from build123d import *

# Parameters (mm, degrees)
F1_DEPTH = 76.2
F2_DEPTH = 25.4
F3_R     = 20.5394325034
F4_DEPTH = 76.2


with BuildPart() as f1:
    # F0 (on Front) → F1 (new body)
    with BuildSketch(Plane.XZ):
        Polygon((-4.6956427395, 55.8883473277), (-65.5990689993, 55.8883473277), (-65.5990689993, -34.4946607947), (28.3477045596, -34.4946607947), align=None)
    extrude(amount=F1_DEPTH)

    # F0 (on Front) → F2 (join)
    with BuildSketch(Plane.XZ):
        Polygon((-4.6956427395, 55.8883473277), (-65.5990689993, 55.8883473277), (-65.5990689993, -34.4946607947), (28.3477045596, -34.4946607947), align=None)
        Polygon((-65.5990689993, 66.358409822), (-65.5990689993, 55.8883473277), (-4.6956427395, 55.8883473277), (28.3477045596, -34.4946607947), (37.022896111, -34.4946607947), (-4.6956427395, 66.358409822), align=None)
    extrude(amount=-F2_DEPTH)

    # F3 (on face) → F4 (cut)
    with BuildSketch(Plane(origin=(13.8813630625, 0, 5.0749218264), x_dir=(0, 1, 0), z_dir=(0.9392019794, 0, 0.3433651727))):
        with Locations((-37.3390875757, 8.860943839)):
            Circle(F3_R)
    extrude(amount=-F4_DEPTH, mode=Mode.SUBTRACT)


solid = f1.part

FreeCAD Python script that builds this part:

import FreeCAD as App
import Part
import Sketcher

V = App.Vector
Q = App.Units.Quantity

doc = App.newDocument("Part")
body = doc.addObject("PartDesign::Body", "Body")

# Sketch on XZ plane
sketch1 = doc.addObject("Sketcher::SketchObject", "Sketch")
body.addObject(sketch1)
sketch1.AttachmentSupport = (doc.XZ_Plane, [""])
sketch1.MapMode = "FlatFace"
sketch1.addGeometry([
    Part.LineSegment(V(-4.695643, 55.888347, 0), V(-65.599069, 55.888347, 0)),
    Part.LineSegment(V(-65.599069, 55.888347, 0), V(-65.599069, -34.494661, 0)),
    Part.LineSegment(V(-65.599069, -34.494661, 0), V(28.347705, -34.494661, 0)),
    Part.LineSegment(V(28.347705, -34.494661, 0), V(-4.695643, 55.888347, 0)),
], False)
sketch1.addConstraint([
    Sketcher.Constraint("Coincident", 0, 2, 1, 1),
    Sketcher.Constraint("Coincident", 1, 2, 2, 1),
    Sketcher.Constraint("Coincident", 2, 2, 3, 1),
    Sketcher.Constraint("Coincident", 3, 2, 0, 1),
    Sketcher.Constraint("Horizontal", 0),
    Sketcher.Constraint("Vertical", 1),
    Sketcher.Constraint("Horizontal", 2),
    Sketcher.Constraint("DistanceY", 1, 2, 1, 1, Q("90.383008 mm")),
    Sketcher.Constraint("DistanceX", 0, 2, 0, 1, Q("60.903426 mm")),
    Sketcher.Constraint("DistanceX", 2, 1, 2, 2, Q("93.946774 mm")),
    Sketcher.Constraint("DistanceX", 0, 2, -1, 1, Q("65.599069 mm")),
    Sketcher.Constraint("DistanceY", 1, 2, -1, 1, Q("34.494661 mm")),
])
pad1 = doc.addObject("PartDesign::Pad", "Pad")
body.addObject(pad1)
pad1.Profile = sketch1
pad1.Length = Q("3 in")

# Sketch on XZ plane
sketch2 = doc.addObject("Sketcher::SketchObject", "Sketch001")
body.addObject(sketch2)
sketch2.AttachmentSupport = (doc.XZ_Plane, [""])
sketch2.MapMode = "FlatFace"
sketch2.addGeometry([
    Part.LineSegment(V(-65.599069, -34.494661, 0), V(37.022896, -34.494661, 0)),
    Part.LineSegment(V(37.022896, -34.494661, 0), V(-4.695643, 66.35841, 0)),
    Part.LineSegment(V(-4.695643, 66.35841, 0), V(-65.599069, 66.35841, 0)),
    Part.LineSegment(V(-65.599069, 66.35841, 0), V(-65.599069, -34.494661, 0)),
], False)
sketch2.addConstraint([
    Sketcher.Constraint("Coincident", 0, 2, 1, 1),
    Sketcher.Constraint("Coincident", 1, 2, 2, 1),
    Sketcher.Constraint("Coincident", 2, 2, 3, 1),
    Sketcher.Constraint("Coincident", 3, 2, 0, 1),
    Sketcher.Constraint("Horizontal", 0),
    Sketcher.Constraint("Horizontal", 2),
    Sketcher.Constraint("Vertical", 3),
    Sketcher.Constraint("DistanceY", 3, 2, 3, 1, Q("100.853071 mm")),
    Sketcher.Constraint("DistanceX", 0, 1, 0, 2, Q("102.621965 mm")),
    Sketcher.Constraint("DistanceX", 2, 2, 2, 1, Q("60.903426 mm")),
    Sketcher.Constraint("DistanceY", 0, 2, -1, 1, Q("34.494661 mm")),
    Sketcher.Constraint("DistanceX", 2, 2, -1, 1, Q("65.599069 mm")),
])
pad2 = doc.addObject("PartDesign::Pad", "Pad001")
body.addObject(pad2)
pad2.Profile = sketch2
pad2.Length = Q("1 in")
pad2.Reversed = True

# Sketch on an angled plane
sketch3 = doc.addObject("Sketcher::SketchObject", "Sketch002")
body.addObject(sketch3)
sketch3.Placement = App.Placement(V(13.881363, 0, 5.074922), App.Rotation(V(0, 1, 0), V(-0.343365173, 0, 0.939201979), V(0.939201979, 0, 0.343365173), "ZXY"))
sketch3.addGeometry(Part.Circle(V(-37.339088, 8.860944, 0), V(0, 0, 1), 20.539433), False)
sketch3.addConstraint([
    Sketcher.Constraint("Diameter", 0, Q("41.078865 mm")),
    Sketcher.Constraint("DistanceX", 0, 3, -1, 1, Q("37.339088 mm")),
    Sketcher.Constraint("DistanceY", -1, 1, 0, 3, Q("8.860944 mm")),
])
pocket1 = doc.addObject("PartDesign::Pocket", "Pocket")
body.addObject(pocket1)
pocket1.Profile = sketch3
pocket1.Length = Q("3 in")

doc.recompute()
